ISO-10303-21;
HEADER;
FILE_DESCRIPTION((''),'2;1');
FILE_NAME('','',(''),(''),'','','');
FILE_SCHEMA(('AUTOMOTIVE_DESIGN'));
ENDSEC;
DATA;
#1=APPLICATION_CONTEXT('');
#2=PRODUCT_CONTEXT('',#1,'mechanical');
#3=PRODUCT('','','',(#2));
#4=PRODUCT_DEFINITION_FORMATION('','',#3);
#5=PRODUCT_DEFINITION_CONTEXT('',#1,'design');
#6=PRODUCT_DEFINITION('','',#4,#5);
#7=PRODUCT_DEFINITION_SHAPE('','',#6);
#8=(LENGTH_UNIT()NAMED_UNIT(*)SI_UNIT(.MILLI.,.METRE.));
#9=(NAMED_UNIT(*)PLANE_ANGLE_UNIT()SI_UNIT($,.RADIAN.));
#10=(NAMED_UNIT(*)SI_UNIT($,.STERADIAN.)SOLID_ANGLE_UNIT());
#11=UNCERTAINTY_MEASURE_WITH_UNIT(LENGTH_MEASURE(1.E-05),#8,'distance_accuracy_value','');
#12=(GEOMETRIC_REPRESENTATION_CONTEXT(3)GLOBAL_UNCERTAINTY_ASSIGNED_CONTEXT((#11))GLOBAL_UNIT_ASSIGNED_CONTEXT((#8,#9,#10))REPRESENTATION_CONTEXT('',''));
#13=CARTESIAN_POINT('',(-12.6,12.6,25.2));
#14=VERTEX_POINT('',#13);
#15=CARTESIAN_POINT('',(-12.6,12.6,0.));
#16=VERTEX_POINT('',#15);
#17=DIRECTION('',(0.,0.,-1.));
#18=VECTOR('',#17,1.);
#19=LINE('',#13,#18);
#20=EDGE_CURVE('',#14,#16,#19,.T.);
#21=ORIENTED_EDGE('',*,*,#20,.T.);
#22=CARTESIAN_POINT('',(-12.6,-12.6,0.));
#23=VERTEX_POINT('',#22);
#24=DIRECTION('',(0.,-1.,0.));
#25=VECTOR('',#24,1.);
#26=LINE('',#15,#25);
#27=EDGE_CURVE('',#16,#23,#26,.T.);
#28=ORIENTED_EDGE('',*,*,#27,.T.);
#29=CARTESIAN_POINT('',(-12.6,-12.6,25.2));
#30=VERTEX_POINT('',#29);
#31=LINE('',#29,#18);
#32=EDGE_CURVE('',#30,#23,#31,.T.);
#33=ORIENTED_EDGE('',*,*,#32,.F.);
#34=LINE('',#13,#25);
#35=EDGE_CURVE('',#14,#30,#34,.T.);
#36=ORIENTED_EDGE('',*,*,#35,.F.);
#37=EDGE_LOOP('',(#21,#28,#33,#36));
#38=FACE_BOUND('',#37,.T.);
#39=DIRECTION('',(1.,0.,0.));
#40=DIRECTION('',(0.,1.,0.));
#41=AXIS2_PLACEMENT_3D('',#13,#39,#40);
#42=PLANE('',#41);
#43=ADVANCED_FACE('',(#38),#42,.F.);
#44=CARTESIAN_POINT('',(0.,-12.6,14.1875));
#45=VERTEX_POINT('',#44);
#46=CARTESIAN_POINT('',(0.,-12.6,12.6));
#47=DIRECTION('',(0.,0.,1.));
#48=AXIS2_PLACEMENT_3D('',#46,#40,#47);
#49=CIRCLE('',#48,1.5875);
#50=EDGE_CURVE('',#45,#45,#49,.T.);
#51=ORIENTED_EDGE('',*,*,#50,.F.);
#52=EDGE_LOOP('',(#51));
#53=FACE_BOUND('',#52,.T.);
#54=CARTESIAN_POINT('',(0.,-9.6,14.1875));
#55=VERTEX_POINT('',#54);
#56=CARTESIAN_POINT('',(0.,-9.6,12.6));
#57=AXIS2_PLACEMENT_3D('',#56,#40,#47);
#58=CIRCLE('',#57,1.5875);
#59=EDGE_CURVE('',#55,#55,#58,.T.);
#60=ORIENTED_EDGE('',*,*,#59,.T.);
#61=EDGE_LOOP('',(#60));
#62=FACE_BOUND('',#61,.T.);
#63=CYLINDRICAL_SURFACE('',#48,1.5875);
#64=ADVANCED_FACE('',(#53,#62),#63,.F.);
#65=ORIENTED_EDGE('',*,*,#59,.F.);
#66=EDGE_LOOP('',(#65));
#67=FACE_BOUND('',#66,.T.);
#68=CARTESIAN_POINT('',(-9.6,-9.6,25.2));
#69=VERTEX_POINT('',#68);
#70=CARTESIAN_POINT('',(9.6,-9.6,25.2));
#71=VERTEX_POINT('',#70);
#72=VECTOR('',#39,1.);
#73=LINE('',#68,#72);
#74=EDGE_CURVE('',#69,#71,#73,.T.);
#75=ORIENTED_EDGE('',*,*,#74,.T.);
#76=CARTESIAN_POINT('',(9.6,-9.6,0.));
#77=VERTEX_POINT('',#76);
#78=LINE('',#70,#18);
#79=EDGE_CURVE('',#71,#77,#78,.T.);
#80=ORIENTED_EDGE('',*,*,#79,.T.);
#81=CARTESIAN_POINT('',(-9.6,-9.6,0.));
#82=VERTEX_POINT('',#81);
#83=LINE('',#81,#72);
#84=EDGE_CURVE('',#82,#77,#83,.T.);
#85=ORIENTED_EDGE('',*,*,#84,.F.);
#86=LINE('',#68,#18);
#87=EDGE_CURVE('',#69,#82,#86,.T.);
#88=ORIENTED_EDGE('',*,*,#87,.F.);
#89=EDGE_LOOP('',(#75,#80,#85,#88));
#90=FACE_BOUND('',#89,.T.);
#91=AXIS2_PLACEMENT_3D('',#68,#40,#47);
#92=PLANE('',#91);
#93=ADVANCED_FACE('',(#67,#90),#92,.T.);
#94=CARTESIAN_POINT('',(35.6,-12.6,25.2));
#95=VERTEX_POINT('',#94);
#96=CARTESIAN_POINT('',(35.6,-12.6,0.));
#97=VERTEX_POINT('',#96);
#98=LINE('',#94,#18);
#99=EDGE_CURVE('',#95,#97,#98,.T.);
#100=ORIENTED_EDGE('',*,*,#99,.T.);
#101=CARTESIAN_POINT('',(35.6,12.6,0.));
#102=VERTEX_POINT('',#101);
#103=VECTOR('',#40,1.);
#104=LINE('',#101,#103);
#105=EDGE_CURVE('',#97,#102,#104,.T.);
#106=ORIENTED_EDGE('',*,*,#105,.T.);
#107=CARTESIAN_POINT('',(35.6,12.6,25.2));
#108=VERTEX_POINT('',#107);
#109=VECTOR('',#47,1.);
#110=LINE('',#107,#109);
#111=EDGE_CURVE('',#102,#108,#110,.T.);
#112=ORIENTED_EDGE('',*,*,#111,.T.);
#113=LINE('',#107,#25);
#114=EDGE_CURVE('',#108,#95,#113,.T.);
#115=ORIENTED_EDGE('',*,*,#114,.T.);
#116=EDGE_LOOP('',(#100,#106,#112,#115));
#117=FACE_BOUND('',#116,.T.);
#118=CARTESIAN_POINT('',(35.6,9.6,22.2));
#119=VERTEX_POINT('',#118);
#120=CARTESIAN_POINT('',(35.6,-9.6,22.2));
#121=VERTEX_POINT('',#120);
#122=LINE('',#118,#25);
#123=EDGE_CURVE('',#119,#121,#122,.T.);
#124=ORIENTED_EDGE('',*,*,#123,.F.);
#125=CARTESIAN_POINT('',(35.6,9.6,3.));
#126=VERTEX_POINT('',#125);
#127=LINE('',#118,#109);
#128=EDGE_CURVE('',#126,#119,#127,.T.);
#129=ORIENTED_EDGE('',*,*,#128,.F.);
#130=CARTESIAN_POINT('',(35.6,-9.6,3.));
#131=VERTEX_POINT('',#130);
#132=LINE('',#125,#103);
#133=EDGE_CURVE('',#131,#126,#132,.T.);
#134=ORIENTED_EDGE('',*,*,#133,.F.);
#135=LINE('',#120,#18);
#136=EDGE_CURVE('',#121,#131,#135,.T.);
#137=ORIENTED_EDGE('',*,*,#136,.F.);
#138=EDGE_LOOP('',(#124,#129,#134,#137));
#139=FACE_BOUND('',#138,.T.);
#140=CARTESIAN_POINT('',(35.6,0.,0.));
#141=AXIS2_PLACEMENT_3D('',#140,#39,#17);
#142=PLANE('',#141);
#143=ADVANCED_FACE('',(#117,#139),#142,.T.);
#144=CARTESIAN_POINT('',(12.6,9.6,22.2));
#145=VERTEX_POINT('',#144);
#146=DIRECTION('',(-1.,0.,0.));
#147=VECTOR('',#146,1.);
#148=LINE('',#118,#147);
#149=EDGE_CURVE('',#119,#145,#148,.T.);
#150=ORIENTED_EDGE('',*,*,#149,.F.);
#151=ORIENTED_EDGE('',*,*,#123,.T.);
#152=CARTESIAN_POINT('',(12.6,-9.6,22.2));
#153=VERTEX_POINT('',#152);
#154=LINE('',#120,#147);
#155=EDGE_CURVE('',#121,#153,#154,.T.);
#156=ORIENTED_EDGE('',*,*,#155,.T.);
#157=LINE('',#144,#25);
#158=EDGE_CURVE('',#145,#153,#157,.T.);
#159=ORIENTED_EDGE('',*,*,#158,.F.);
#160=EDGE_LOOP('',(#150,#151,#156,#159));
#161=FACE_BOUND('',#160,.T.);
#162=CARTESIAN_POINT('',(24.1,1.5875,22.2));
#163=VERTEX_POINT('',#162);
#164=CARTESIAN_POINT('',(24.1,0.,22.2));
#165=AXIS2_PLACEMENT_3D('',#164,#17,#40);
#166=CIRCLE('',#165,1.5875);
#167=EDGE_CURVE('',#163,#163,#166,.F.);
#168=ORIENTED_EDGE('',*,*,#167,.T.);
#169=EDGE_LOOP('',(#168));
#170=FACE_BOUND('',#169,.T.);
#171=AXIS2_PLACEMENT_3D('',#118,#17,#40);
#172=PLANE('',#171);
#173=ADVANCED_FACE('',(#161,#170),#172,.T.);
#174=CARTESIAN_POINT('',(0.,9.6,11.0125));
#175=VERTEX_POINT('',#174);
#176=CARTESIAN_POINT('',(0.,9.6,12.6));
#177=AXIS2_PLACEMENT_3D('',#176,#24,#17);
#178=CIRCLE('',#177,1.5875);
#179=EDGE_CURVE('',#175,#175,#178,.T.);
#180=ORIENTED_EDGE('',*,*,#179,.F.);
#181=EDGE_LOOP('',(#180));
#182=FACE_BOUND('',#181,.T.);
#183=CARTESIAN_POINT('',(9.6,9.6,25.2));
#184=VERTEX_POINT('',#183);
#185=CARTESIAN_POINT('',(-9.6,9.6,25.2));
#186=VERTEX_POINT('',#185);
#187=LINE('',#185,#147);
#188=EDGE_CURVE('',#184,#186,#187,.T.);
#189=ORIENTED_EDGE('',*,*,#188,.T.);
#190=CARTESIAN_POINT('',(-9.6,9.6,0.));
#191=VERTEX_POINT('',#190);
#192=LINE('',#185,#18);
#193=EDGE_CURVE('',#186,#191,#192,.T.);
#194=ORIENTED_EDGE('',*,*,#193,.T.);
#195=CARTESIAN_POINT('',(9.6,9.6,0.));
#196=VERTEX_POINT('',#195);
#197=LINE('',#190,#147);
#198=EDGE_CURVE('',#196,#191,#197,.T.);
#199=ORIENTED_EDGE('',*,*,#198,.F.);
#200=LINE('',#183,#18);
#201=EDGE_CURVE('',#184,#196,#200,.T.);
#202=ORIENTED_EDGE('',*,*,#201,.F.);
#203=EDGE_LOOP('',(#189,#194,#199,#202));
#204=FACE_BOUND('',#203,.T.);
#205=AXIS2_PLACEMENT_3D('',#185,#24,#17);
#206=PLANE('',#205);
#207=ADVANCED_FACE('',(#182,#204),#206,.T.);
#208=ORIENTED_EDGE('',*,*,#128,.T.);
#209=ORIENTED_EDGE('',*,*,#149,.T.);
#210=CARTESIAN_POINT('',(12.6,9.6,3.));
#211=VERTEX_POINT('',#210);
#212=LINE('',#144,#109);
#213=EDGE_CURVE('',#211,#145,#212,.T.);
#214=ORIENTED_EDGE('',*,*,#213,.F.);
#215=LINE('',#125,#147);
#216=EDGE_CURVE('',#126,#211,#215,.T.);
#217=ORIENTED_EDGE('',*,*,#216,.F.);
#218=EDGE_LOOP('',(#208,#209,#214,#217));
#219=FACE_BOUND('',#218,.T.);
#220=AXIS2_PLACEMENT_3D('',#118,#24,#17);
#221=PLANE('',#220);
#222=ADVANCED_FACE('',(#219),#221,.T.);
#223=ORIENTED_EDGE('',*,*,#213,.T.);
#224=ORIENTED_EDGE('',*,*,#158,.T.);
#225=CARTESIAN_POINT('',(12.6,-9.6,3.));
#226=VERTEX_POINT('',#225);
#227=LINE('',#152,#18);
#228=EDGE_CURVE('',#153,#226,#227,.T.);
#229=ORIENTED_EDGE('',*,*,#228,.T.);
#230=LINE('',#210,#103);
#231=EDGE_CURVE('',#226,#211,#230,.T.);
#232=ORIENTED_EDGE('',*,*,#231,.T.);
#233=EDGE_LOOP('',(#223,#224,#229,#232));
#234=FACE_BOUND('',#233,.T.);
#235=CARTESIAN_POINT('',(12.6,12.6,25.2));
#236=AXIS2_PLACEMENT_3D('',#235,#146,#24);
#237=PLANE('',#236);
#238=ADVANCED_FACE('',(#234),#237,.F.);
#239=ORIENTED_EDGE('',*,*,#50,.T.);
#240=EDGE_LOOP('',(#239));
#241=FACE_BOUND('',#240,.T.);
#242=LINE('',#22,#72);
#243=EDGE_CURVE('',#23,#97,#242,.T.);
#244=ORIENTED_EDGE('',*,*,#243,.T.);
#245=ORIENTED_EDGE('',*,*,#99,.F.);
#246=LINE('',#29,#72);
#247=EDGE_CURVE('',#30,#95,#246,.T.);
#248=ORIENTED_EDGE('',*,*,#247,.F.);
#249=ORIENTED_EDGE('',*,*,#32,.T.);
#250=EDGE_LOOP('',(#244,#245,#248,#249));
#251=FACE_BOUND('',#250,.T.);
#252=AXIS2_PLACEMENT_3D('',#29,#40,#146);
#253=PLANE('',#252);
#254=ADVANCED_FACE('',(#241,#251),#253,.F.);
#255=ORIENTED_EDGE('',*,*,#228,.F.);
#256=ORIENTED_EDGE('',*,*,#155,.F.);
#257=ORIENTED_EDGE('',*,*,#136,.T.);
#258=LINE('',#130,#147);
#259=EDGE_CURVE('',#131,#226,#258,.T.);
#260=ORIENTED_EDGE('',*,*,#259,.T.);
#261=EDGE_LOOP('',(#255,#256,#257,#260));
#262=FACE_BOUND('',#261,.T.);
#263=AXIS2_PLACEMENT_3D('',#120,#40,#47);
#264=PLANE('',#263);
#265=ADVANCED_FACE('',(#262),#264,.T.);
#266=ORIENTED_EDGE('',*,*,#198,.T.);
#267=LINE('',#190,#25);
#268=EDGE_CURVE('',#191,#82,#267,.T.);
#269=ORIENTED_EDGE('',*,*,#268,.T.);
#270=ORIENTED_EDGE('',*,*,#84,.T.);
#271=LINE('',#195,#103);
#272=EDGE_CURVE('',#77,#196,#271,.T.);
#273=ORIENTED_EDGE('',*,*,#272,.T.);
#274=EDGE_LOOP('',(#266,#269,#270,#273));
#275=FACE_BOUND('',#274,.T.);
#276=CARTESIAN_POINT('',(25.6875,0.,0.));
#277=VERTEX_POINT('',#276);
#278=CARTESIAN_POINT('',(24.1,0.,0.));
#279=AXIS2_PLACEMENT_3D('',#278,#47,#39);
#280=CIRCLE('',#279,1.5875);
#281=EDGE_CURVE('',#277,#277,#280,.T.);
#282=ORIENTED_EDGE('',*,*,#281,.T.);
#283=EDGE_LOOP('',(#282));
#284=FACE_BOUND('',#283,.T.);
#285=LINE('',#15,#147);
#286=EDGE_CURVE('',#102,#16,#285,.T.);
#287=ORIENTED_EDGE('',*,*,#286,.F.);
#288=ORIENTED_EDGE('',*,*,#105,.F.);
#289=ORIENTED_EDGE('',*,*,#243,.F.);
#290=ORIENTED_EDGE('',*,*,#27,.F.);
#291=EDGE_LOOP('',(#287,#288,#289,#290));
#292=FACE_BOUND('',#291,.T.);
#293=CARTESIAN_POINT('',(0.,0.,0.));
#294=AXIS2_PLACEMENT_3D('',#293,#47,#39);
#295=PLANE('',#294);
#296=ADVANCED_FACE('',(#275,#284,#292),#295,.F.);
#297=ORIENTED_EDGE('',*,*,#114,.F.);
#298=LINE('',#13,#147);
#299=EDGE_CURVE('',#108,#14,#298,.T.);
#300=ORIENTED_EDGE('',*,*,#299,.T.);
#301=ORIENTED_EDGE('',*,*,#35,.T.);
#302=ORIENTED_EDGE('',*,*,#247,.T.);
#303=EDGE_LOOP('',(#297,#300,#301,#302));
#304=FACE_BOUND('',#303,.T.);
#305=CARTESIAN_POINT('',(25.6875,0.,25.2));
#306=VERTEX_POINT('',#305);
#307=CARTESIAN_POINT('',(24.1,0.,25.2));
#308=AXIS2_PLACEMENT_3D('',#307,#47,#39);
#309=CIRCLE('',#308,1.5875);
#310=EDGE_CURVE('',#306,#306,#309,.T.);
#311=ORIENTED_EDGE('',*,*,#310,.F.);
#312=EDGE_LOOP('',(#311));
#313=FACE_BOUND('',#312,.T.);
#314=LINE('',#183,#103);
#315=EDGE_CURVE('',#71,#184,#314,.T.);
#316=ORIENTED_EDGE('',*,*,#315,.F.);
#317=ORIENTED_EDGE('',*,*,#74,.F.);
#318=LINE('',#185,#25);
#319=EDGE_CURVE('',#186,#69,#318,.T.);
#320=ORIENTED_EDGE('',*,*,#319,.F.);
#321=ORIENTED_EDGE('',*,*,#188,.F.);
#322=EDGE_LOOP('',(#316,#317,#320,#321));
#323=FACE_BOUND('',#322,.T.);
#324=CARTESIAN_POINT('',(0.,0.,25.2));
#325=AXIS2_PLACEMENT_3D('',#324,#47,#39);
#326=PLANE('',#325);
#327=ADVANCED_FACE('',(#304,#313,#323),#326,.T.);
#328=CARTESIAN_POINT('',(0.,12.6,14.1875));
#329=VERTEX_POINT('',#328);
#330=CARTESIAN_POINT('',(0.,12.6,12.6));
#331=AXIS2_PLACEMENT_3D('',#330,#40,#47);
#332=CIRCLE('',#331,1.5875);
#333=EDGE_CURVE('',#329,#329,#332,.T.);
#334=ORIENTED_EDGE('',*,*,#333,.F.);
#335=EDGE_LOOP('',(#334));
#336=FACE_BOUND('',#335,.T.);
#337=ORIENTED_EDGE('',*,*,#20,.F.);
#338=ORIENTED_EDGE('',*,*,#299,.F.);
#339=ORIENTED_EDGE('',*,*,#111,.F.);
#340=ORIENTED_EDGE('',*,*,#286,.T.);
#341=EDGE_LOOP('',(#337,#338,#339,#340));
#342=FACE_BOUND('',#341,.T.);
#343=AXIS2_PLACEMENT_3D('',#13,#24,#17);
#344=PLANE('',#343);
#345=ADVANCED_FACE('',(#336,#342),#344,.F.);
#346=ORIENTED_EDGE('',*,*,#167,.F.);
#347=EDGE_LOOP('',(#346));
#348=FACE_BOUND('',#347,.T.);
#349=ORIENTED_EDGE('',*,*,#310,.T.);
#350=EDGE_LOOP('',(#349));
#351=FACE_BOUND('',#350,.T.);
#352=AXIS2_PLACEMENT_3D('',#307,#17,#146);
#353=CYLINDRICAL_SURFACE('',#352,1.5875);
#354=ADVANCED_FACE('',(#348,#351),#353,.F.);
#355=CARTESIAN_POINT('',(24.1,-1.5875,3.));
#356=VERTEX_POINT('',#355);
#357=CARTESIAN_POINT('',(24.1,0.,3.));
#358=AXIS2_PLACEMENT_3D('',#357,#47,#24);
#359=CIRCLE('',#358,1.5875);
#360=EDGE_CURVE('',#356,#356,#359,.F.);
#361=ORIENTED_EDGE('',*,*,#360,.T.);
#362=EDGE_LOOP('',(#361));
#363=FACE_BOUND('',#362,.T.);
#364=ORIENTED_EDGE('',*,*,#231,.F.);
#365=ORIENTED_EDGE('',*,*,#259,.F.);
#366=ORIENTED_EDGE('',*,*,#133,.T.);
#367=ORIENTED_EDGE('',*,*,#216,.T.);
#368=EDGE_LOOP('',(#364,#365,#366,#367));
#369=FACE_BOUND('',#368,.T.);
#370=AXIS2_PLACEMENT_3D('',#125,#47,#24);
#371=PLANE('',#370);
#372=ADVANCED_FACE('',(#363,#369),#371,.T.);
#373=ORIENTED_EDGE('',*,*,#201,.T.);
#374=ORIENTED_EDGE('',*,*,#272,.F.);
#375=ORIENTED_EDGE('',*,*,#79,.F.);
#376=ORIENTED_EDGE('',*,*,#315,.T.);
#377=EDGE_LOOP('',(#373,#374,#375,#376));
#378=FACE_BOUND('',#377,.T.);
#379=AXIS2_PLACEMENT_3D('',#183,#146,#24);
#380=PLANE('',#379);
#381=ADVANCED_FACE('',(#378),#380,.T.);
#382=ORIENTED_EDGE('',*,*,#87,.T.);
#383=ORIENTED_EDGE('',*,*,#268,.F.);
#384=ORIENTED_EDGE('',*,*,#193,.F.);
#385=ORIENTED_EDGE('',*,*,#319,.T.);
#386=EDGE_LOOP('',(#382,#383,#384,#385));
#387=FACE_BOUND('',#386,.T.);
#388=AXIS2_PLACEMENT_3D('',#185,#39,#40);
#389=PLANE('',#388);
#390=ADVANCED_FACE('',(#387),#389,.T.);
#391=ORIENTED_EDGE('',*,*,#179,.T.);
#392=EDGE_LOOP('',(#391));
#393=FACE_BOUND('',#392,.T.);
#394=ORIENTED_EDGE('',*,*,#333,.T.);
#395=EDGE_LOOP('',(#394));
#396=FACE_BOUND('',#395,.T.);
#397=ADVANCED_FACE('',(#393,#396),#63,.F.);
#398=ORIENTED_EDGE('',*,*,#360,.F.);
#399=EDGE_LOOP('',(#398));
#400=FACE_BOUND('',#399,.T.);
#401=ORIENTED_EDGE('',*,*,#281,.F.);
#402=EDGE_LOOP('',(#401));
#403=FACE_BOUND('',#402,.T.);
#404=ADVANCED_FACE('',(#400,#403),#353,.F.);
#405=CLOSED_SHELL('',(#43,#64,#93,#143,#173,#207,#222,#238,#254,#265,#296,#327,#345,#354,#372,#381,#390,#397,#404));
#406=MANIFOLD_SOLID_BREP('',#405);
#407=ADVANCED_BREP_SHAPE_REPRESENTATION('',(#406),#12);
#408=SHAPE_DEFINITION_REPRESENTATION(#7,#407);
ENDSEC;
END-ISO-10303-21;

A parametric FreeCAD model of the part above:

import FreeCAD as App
import Part
import Sketcher
from FreeCAD import Vector
Q = App.Units.Quantity


def add_polygon(sketch, points):
    """Adds a closed chain of lines whose ends are joined by coincident constraints."""
    first, n = sketch.GeometryCount, len(points)
    for a, b in zip(points, points[1:] + points[:1]):
        sketch.addGeometry(Part.LineSegment(App.Vector(*a, 0), App.Vector(*b, 0)), False)
    for i in range(n):
        sketch.addConstraint(Sketcher.Constraint("Coincident", first + i, 2, first + (i + 1) % n, 1))

doc = App.newDocument("Part")
body = doc.addObject("PartDesign::Body", "Body")

# Sketch on XY plane
sketch1 = body.newObject("Sketcher::SketchObject", "Sketch")
sketch1.AttachmentSupport = (doc.getObject("XY_Plane"), [""])
sketch1.MapMode = "FlatFace"
add_polygon(sketch1, [(-13, 13), (-13, -13), (13, -13), (13, 13)])  # lines 0-3
add_polygon(sketch1, [(10, -10), (-10, -10), (-10, 10), (10, 10)])  # lines 4-7
sketch1.addConstraint(Sketcher.Constraint("Vertical", 0))
sketch1.addConstraint(Sketcher.Constraint("Horizontal", 1))
sketch1.addConstraint(Sketcher.Constraint("Vertical", 2))
sketch1.addConstraint(Sketcher.Constraint("Horizontal", 3))
sketch1.addConstraint(Sketcher.Constraint("Horizontal", 4))
sketch1.addConstraint(Sketcher.Constraint("Vertical", 5))
sketch1.addConstraint(Sketcher.Constraint("Horizontal", 6))
sketch1.addConstraint(Sketcher.Constraint("Vertical", 7))
sketch1.addConstraint(Sketcher.Constraint("Symmetric", 0, 2, 2, 2, -1, 1))
sketch1.addConstraint(Sketcher.Constraint("Symmetric", 4, 2, 6, 2, -1, 1))
sketch1.addConstraint(Sketcher.Constraint("Equal", 3, 0))
sketch1.addConstraint(Sketcher.Constraint("Equal", 6, 5))
sketch1.addConstraint(Sketcher.Constraint("DistanceX", 1, 1, 1, 2, Q("25.2 mm")))
sketch1.addConstraint(Sketcher.Constraint("DistanceX", 4, 2, 4, 1, Q("19.2 mm")))
pad1 = body.newObject("PartDesign::Pad", "Pad")
pad1.Profile = sketch1
pad1.Length = 25.2

# Sketch on YZ plane
sketch2 = body.newObject("Sketcher::SketchObject", "Sketch001")
sketch2.AttachmentSupport = (doc.getObject("YZ_Plane"), [""])
sketch2.MapMode = "FlatFace"
sketch2.AttachmentOffset = App.Placement(Vector(0, 0, 12.6), App.Rotation())
add_polygon(sketch2, [(13, 25), (-13, 25), (-13, 0), (13, 0)])  # lines 0-3
add_polygon(sketch2, [(-10, 3), (-10, 22), (10, 22), (10, 3)])  # lines 4-7
sketch2.addConstraint(Sketcher.Constraint("Horizontal", 0))
sketch2.addConstraint(Sketcher.Constraint("Vertical", 1))
sketch2.addConstraint(Sketcher.Constraint("Horizontal", 2))
sketch2.addConstraint(Sketcher.Constraint("Vertical", 3))
sketch2.addConstraint(Sketcher.Constraint("Vertical", 4))
sketch2.addConstraint(Sketcher.Constraint("Horizontal", 5))
sketch2.addConstraint(Sketcher.Constraint("Vertical", 6))
sketch2.addConstraint(Sketcher.Constraint("Horizontal", 7))
sketch2.addConstraint(Sketcher.Constraint("Symmetric", 1, 2, 2, 2, -1, 1))
sketch2.addConstraint(Sketcher.Constraint("Equal", 2, 1))
sketch2.addConstraint(Sketcher.Constraint("Equal", 7, 4))
sketch2.addConstraint(Sketcher.Constraint("DistanceX", 0, 2, 0, 1, Q("25.2 mm")))
sketch2.addConstraint(Sketcher.Constraint("DistanceX", 5, 1, 5, 2, Q("19.2 mm")))
sketch2.addConstraint(Sketcher.Constraint("DistanceY", -1, 1, 6, 2, Q("3 mm")))
sketch2.addConstraint(Sketcher.Constraint("DistanceX", 0, 2, 4, 2, Q("3 mm")))
pad2 = body.newObject("PartDesign::Pad", "Pad001")
pad2.Profile = sketch2
pad2.Length = 23

# Sketch on XZ plane
sketch3 = body.newObject("Sketcher::SketchObject", "Sketch002")
sketch3.AttachmentSupport = (doc.getObject("XZ_Plane"), [""])
sketch3.MapMode = "FlatFace"
sketch3.AttachmentOffset = App.Placement(Vector(0, 0, 9.6), App.Rotation())
sketch3.addGeometry(Part.Circle(Vector(0, 12.6, 0), Vector(0, 0, 1), 1.6), False)
sketch3.addConstraint(Sketcher.Constraint("PointOnObject", 0, 3, -2))
sketch3.addConstraint(Sketcher.Constraint("Diameter", 0, Q("3.175 mm")))
sketch3.addConstraint(Sketcher.Constraint("DistanceY", -1, 1, 0, 3, Q("12.6 mm")))
pocket1 = body.newObject("PartDesign::Pocket", "Pocket")
pocket1.Profile = sketch3
pocket1.Type = "ThroughAll"
pocket1.Midplane = True

# Sketch on XY plane
sketch4 = body.newObject("Sketcher::SketchObject", "Sketch003")
sketch4.AttachmentSupport = (doc.getObject("XY_Plane"), [""])
sketch4.MapMode = "FlatFace"
sketch4.AttachmentOffset = App.Placement(Vector(0, 0, 3), App.Rotation())
sketch4.addGeometry(Part.Circle(Vector(24.1, 0, 0), Vector(0, 0, 1), 1.6), False)
sketch4.addConstraint(Sketcher.Constraint("PointOnObject", 0, 3, -1))
sketch4.addConstraint(Sketcher.Constraint("Diameter", 0, Q("3.175 mm")))
sketch4.addConstraint(Sketcher.Constraint("DistanceX", -1, 1, 0, 3, Q("24.1 mm")))
pocket2 = body.newObject("PartDesign::Pocket", "Pocket001")
pocket2.Profile = sketch4
pocket2.Type = "ThroughAll"
pocket2.Midplane = True

doc.recompute()
